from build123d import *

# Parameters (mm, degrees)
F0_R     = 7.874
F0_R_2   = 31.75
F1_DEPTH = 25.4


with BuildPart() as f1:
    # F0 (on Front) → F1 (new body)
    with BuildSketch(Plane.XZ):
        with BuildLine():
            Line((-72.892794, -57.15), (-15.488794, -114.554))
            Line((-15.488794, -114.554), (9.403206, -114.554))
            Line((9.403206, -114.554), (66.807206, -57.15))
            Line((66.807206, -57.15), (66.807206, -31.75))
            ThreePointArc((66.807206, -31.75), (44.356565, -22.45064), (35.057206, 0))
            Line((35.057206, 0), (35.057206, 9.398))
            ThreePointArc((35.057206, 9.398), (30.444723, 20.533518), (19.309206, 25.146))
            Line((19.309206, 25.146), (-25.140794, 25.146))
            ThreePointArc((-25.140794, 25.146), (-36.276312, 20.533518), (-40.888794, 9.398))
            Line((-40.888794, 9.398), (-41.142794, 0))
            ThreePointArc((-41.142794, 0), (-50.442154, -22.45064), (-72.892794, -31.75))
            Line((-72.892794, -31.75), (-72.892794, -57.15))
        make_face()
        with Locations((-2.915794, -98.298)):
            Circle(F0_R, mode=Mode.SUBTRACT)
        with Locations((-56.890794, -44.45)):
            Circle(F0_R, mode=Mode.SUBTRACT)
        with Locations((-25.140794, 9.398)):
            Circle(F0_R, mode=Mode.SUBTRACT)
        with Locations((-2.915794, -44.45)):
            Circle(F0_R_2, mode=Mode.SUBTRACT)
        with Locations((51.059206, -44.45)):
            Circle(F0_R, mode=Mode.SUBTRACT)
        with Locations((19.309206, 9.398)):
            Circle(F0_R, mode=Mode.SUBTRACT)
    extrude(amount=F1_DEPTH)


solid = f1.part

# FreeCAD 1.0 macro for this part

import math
import FreeCAD as App
import Part
import Sketcher
Q = App.Units.Quantity

doc = App.newDocument("Part")
body = doc.addObject("PartDesign::Body", "Body")

sketch1 = doc.addObject("Sketcher::SketchObject", "Sketch")
body.addObject(sketch1)
sketch1.AttachmentSupport = (doc.XZ_Plane, [""])
sketch1.MapMode = "FlatFace"
sketch1.addGeometry([
    Part.LineSegment(App.Vector(-72.892794, -57.15, 0), App.Vector(-15.488794, -114.554, 0)),
    Part.LineSegment(App.Vector(-15.488794, -114.554, 0), App.Vector(9.403206, -114.554, 0)),
    Part.LineSegment(App.Vector(9.403206, -114.554, 0), App.Vector(66.807206, -57.15, 0)),
    Part.LineSegment(App.Vector(66.807206, -57.15, 0), App.Vector(66.807206, -31.75, 0)),
    Part.ArcOfCircle(Part.Circle(App.Vector(66.807205, -0.000001, 0), App.Vector(0, 0, 1), 31.749999), math.radians(179.999999), math.radians(270.000001)),
    Part.LineSegment(App.Vector(35.057206, 0, 0), App.Vector(35.057206, 9.398, 0)),
    Part.ArcOfCircle(Part.Circle(App.Vector(19.309206, 9.398, 0), App.Vector(0, 0, 1), 15.748), math.radians(0.000001), math.radians(89.999999)),
    Part.LineSegment(App.Vector(19.309206, 25.146, 0), App.Vector(-25.140794, 25.146, 0)),
    Part.ArcOfCircle(Part.Circle(App.Vector(-25.140795, 9.398001, 0), App.Vector(0, 0, 1), 15.747999), math.radians(89.999995), math.radians(180.000005)),
    Part.LineSegment(App.Vector(-40.888794, 9.398, 0), App.Vector(-41.142794, 0, 0)),
    Part.ArcOfCircle(Part.Circle(App.Vector(-72.892795, 0.000001, 0), App.Vector(0, 0, 1), 31.750001), math.radians(-89.999998), math.radians(-0.000002)),
    Part.LineSegment(App.Vector(-72.892794, -31.75, 0), App.Vector(-72.892794, -57.15, 0)),
    Part.Circle(App.Vector(-2.915794, -98.298, 0), App.Vector(0, 0, 1), 7.874),
    Part.Circle(App.Vector(-56.890794, -44.45, 0), App.Vector(0, 0, 1), 7.874),
    Part.Circle(App.Vector(-2.915794, -44.45, 0), App.Vector(0, 0, 1), 31.75),
    Part.Circle(App.Vector(-25.140794, 9.398, 0), App.Vector(0, 0, 1), 7.874),
    Part.Circle(App.Vector(51.059206, -44.45, 0), App.Vector(0, 0, 1), 7.874),
    Part.Circle(App.Vector(19.309206, 9.398, 0), App.Vector(0, 0, 1), 7.874),
], False)
sketch1.addConstraint([
    Sketcher.Constraint("Coincident", 0, 2, 1, 1),
    Sketcher.Constraint("Coincident", 1, 2, 2, 1),
    Sketcher.Constraint("Coincident", 2, 2, 3, 1),
    Sketcher.Constraint("Coincident", 3, 2, 4, 2),
    Sketcher.Constraint("Tangent", 4, 1, 5, 1),
    Sketcher.Constraint("Tangent", 5, 2, 6, 1),
    Sketcher.Constraint("Tangent", 6, 2, 7, 1),
    Sketcher.Constraint("Tangent", 7, 2, 8, 1),
    Sketcher.Constraint("Coincident", 8, 2, 9, 1),
    Sketcher.Constraint("Coincident", 9, 2, 10, 2),
    Sketcher.Constraint("Coincident", 10, 1, 11, 1),
    Sketcher.Constraint("Coincident", 11, 2, 0, 1),
    Sketcher.Constraint("Horizontal", 1),
    Sketcher.Constraint("Vertical", 3),
    Sketcher.Constraint("Vertical", 5),
    Sketcher.Constraint("Horizontal", 7),
    Sketcher.Constraint("Vertical", 11),
    Sketcher.Constraint("Coincident", 15, 3, 8, 3),
    Sketcher.Constraint("Coincident", 17, 3, 6, 3),
    Sketcher.Constraint("Equal", 6, 8),
    Sketcher.Constraint("Equal", 4, 10),
    Sketcher.Constraint("Equal", 12, 13),
    Sketcher.Constraint("Equal", 10, 14),
    Sketcher.Constraint("Equal", 13, 15),
    Sketcher.Constraint("Equal", 15, 16),
    Sketcher.Constraint("Equal", 16, 17),
    Sketcher.Constraint("PointOnObject", 4, 3, -1),
    Sketcher.Constraint("PointOnObject", 10, 3, -1),
    Sketcher.Constraint("PointOnObject", 9, 2, -1),
    Sketcher.Constraint("Perpendicular", 0, 2),
    Sketcher.Constraint("Horizontal", 13, 3, 14, 3),
    Sketcher.Constraint("Horizontal", 14, 3, 16, 3),
    Sketcher.Constraint("Horizontal", 5, 2, 8, 2),
    Sketcher.Constraint("Horizontal", 2, 2, 11, 2),
    Sketcher.Constraint("Vertical", 12, 3, 14, 3),
    Sketcher.Constraint("Vertical", 4, 3, 2, 2),
    Sketcher.Constraint("Equal", 0, 2),
    Sketcher.Constraint("Diameter", 14, Q("2.5 in")),
    Sketcher.Constraint("Diameter", 12, Q("0.62 in")),
    Sketcher.Constraint("DistanceY", 3, 1, 3, 2, Q("1 in")),
    Sketcher.Constraint("Radius", 6, Q("0.62 in")),
    Sketcher.Constraint("DistanceX", 13, 3, 6, 3, Q("3 in")),
    Sketcher.Constraint("DistanceX", 15, 3, 16, 3, Q("3 in")),
    Sketcher.Constraint("DistanceX", 1, 1, 1, 2, Q("0.98 in")),
    Sketcher.Constraint("DistanceX", 7, 2, 7, 1, Q("1.75 in")),
    Sketcher.Constraint("DistanceY", 5, 1, 5, 2, Q("0.37 in")),
    Sketcher.Constraint("DistanceX", 10, 3, 4, 3, Q("5.5 in")),
    Sketcher.Constraint("DistanceY", 2, 2, 16, 3, Q("0.5 in")),
    Sketcher.Constraint("DistanceY", 12, 3, -1, 1, Q("3.87 in")),
    Sketcher.Constraint("DistanceY", 0, 2, -1, 1, Q("4.51 in")),
    Sketcher.Constraint("DistanceX", 12, 3, 6, 3, Q("0.875 in")),
    Sketcher.Constraint("DistanceX", -1, 1, 4, 3, 66.807205),
])
pad1 = doc.addObject("PartDesign::Pad", "Pad")
body.addObject(pad1)
pad1.Profile = sketch1
pad1.Length = Q("1 in")

doc.recompute()
